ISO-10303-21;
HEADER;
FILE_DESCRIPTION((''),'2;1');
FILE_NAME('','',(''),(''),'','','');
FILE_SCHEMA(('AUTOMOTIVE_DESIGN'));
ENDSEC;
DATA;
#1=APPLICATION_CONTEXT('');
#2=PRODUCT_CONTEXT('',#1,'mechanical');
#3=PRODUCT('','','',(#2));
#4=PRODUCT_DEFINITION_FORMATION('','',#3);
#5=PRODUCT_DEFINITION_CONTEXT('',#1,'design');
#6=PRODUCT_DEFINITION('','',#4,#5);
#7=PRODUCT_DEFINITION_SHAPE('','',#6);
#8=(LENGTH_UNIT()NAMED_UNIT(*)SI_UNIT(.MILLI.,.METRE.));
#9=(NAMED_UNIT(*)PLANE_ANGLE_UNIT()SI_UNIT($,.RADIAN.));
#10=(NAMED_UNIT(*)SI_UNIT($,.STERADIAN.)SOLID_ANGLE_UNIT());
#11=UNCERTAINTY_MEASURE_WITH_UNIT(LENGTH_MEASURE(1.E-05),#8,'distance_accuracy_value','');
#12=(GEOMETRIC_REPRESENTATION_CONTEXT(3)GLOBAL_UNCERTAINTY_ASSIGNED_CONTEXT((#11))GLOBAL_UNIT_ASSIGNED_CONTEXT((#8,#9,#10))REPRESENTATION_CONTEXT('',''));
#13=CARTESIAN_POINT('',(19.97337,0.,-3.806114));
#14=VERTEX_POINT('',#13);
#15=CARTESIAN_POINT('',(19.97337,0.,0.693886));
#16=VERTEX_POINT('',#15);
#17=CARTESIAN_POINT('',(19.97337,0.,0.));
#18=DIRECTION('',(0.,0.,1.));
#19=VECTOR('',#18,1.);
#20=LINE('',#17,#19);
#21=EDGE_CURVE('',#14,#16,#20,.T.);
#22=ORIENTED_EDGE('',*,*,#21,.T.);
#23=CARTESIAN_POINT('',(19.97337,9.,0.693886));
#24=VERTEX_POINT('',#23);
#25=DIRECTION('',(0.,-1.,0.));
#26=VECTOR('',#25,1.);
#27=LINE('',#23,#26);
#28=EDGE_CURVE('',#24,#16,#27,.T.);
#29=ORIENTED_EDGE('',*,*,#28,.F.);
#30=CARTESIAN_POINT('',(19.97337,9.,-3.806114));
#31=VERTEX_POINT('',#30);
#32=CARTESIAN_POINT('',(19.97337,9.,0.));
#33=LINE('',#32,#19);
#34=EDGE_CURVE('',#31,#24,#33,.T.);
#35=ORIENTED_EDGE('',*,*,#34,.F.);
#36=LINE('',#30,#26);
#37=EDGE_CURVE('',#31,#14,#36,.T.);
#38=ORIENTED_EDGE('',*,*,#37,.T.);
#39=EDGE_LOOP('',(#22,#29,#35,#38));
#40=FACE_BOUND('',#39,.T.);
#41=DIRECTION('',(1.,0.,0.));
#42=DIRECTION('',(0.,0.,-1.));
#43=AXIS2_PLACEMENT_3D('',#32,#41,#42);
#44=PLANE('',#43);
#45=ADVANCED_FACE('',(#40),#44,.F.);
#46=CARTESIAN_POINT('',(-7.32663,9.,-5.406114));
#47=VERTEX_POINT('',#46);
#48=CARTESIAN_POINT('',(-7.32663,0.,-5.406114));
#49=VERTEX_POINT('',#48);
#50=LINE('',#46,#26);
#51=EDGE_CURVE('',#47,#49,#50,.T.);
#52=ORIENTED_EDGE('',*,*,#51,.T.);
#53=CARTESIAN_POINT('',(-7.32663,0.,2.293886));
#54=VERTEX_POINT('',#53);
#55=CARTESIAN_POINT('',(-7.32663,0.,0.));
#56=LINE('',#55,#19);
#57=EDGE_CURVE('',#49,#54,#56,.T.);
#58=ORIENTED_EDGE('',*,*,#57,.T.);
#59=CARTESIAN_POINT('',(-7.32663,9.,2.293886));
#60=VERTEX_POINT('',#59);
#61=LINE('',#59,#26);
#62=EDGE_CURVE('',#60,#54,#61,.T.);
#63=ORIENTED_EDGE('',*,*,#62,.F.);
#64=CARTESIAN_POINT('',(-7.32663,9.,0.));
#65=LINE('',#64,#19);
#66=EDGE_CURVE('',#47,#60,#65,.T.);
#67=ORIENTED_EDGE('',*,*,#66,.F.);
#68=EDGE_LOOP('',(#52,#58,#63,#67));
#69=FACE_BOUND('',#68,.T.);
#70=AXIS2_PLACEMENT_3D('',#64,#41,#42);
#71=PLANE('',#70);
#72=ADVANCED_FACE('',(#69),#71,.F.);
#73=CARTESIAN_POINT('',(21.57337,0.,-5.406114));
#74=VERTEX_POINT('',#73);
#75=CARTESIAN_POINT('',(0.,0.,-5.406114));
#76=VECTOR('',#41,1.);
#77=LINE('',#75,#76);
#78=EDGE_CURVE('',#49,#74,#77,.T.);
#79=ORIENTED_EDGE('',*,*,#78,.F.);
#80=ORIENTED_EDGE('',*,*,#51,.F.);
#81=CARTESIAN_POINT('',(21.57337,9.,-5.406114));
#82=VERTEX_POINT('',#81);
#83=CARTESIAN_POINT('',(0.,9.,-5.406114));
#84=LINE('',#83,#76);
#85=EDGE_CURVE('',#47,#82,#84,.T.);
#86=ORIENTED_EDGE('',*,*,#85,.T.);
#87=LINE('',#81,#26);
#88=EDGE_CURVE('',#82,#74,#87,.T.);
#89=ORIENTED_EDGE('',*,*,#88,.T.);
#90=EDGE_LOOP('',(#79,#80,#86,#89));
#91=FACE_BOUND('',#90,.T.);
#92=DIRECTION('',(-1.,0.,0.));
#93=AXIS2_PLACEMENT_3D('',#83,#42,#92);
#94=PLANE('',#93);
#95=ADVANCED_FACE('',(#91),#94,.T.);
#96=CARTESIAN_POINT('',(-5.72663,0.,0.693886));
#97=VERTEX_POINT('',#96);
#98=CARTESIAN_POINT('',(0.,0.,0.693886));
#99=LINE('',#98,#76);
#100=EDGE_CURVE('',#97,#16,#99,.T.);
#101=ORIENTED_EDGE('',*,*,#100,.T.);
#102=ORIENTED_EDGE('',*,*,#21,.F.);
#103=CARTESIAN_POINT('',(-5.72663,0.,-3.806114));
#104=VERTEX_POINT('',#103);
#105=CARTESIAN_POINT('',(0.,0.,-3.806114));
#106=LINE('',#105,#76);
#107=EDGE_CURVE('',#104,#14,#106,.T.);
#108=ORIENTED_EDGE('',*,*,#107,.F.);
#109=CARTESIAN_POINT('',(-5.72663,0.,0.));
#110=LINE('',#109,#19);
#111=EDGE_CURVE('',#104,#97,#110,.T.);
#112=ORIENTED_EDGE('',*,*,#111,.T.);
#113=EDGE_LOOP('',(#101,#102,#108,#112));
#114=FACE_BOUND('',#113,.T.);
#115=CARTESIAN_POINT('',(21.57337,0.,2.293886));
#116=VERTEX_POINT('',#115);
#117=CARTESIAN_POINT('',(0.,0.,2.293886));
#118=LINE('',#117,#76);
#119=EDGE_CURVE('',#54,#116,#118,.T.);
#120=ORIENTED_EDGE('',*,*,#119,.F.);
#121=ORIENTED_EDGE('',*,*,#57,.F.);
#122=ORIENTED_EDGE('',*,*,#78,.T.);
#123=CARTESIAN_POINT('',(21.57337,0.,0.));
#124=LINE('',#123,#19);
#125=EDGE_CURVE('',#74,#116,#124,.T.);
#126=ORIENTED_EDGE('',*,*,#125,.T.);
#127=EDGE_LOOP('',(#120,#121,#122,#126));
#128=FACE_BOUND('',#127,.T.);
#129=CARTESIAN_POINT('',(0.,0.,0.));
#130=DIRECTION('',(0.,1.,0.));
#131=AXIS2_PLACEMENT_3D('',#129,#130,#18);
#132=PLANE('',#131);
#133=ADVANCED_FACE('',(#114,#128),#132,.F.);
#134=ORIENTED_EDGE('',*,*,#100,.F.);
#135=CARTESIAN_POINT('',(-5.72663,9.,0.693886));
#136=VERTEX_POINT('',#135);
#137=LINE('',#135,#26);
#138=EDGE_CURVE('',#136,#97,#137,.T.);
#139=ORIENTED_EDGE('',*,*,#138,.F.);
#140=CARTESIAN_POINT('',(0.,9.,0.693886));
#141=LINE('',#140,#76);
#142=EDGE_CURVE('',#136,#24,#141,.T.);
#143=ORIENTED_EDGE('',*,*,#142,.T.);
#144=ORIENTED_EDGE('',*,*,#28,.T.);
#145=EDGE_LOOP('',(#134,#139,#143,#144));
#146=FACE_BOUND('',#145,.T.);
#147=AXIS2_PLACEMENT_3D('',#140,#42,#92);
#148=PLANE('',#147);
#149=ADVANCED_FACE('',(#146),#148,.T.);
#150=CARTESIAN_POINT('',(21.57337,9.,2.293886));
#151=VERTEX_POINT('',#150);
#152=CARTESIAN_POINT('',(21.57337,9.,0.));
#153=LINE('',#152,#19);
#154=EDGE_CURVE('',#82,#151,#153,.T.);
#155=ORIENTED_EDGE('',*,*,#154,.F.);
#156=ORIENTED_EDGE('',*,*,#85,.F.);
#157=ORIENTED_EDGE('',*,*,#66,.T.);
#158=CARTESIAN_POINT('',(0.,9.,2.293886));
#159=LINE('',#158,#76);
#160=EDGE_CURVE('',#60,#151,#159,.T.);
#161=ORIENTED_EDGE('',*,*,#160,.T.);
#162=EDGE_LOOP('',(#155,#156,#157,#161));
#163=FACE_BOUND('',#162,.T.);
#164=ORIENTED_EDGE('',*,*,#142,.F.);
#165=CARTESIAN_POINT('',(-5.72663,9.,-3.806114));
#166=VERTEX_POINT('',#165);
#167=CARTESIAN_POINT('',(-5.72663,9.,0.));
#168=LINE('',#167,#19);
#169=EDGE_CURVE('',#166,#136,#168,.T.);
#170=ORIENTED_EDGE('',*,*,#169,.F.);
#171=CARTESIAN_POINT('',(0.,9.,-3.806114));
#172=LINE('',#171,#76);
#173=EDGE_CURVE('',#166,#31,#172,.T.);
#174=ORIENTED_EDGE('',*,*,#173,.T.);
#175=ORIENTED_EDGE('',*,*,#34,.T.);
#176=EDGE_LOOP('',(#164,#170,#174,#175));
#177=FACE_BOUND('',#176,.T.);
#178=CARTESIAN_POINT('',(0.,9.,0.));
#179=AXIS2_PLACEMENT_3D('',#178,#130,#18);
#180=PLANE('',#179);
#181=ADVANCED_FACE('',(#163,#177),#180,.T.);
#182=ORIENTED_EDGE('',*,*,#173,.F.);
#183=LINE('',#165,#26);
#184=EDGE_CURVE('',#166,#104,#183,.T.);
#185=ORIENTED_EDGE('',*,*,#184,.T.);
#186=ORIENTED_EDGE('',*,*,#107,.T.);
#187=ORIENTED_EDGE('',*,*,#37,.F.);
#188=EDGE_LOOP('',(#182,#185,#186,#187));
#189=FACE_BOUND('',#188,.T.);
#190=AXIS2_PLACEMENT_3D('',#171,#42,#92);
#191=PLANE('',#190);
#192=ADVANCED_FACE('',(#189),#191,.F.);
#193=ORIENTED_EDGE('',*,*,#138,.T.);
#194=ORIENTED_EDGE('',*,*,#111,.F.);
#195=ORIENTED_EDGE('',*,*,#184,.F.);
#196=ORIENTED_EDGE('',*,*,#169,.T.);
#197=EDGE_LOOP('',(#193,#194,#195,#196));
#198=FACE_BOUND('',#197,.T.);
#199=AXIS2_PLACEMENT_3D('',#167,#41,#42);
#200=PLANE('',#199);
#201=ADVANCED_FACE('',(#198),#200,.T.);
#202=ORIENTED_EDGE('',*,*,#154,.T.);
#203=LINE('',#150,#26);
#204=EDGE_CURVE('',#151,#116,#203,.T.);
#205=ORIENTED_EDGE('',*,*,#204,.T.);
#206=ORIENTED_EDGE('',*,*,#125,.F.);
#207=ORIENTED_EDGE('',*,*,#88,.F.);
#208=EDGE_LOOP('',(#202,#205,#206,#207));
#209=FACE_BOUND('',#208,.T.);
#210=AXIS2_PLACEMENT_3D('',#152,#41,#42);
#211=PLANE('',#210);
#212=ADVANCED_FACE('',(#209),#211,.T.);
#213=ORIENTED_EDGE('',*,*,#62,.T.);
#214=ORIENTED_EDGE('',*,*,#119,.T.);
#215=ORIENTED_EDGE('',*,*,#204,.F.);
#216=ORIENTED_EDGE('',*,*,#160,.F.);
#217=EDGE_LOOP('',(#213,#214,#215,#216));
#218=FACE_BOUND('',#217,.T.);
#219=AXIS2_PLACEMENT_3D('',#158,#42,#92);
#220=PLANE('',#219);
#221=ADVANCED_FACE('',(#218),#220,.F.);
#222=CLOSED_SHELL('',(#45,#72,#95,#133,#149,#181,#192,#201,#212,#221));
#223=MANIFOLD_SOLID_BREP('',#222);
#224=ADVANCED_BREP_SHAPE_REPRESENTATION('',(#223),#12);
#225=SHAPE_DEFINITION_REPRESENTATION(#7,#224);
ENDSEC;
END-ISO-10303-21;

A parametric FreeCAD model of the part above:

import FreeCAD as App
import Part
import Sketcher
from FreeCAD import Vector


def add_polygon(sketch, points):
    """Adds a closed chain of lines whose ends are joined by coincident constraints."""
    first, n = sketch.GeometryCount, len(points)
    for a, b in zip(points, points[1:] + points[:1]):
        sketch.addGeometry(Part.LineSegment(App.Vector(*a, 0), App.Vector(*b, 0)), False)
    for i in range(n):
        sketch.addConstraint(Sketcher.Constraint("Coincident", first + i, 2, first + (i + 1) % n, 1))

doc = App.newDocument("Part")
params = doc.addObject("Spreadsheet::Sheet", "Params")
for row, (alias, value) in enumerate([
    ("sketch1_width", "28.9 mm"),
    ("sketch1_width2", "25.7 mm"),
    ("sketch1_height", "7.7 mm"),
    ("sketch1_height2", "4.5 mm"),
    ("pad1_length", "9 mm"),
], start=1):
    params.set(f"A{row}", alias)
    params.set(f"B{row}", "=" + value)
    params.setAlias(f"B{row}", alias)

body = doc.addObject("PartDesign::Body", "Body")

# Sketch on XZ plane
sketch1 = body.newObject("Sketcher::SketchObject", "Sketch")
sketch1.AttachmentSupport = (doc.getObject("XZ_Plane"), [""])
sketch1.MapMode = "FlatFace"
add_polygon(sketch1, [(-7.3, -5.4), (-7.3, 2.3), (21.6, 2.3), (21.6, -5.4)])  # lines 0-3
add_polygon(sketch1, [(20, 0.7), (-5.7, 0.7), (-5.7, -3.8), (20, -3.8)])  # lines 4-7
sketch1.addConstraint(Sketcher.Constraint("Vertical", 0))
sketch1.addConstraint(Sketcher.Constraint("Horizontal", 1))
sketch1.addConstraint(Sketcher.Constraint("Vertical", 2))
sketch1.addConstraint(Sketcher.Constraint("Horizontal", 3))
sketch1.addConstraint(Sketcher.Constraint("Horizontal", 4))
sketch1.addConstraint(Sketcher.Constraint("Vertical", 5))
sketch1.addConstraint(Sketcher.Constraint("Horizontal", 6))
sketch1.addConstraint(Sketcher.Constraint("Vertical", 7))
sketch1.addConstraint(Sketcher.Constraint("DistanceX", 1, 1, 1, 2, 28.9))
sketch1.addConstraint(Sketcher.Constraint("DistanceX", 4, 2, 4, 1, 25.7))
sketch1.addConstraint(Sketcher.Constraint("DistanceY", 0, 1, 0, 2, 7.7))
sketch1.addConstraint(Sketcher.Constraint("DistanceY", 5, 2, 5, 1, 4.5))
sketch1.addConstraint(Sketcher.Constraint("DistanceX", 0, 2, 4, 2, 1.6))
sketch1.addConstraint(Sketcher.Constraint("DistanceY", 4, 2, 0, 2, 1.6))
sketch1.addConstraint(Sketcher.Constraint("DistanceX", 0, 2, -1, 1, 7.32663))
sketch1.addConstraint(Sketcher.Constraint("DistanceY", -1, 1, 0, 2, 2.293886))
sketch1.setExpression("Constraints[16]", "Params.sketch1_width")
sketch1.setExpression("Constraints[17]", "Params.sketch1_width2")
sketch1.setExpression("Constraints[18]", "Params.sketch1_height")
sketch1.setExpression("Constraints[19]", "Params.sketch1_height2")
pad1 = body.newObject("PartDesign::Pad", "Pad")
pad1.Profile = sketch1
pad1.setExpression("Length", "Params.pad1_length")
pad1.Reversed = True

doc.recompute()
